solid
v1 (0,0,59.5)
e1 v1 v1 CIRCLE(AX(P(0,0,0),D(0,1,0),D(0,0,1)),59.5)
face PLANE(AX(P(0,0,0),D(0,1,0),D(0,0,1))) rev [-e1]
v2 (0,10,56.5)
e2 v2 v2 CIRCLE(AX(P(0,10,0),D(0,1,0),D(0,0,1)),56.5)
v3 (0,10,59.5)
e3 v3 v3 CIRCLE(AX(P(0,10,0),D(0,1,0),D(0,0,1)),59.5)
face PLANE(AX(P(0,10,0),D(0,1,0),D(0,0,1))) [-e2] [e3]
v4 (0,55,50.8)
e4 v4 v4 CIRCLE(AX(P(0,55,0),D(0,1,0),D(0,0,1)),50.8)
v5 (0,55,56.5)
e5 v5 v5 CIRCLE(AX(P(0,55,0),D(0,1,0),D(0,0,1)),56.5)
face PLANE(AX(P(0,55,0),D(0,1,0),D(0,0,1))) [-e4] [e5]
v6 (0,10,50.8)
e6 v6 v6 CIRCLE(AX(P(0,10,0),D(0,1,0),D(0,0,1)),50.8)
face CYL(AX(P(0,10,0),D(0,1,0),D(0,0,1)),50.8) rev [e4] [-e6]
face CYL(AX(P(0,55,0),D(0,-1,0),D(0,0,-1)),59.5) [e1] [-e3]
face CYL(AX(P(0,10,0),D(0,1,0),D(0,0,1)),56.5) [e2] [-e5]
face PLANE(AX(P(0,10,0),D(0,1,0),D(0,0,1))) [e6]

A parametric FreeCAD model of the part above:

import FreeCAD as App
import Part
import Sketcher
from FreeCAD import Vector

doc = App.newDocument("Part")
body = doc.addObject("PartDesign::Body", "Body")

# Sketch on XZ plane
sketch1 = body.newObject("Sketcher::SketchObject", "Sketch")
sketch1.AttachmentSupport = (doc.getObject("XZ_Plane"), [""])
sketch1.MapMode = "FlatFace"
sketch1.addGeometry(Part.Circle(Vector(0, 0, 0), Vector(0, 0, 1), 60), False)
sketch1.addConstraint([
    Sketcher.Constraint("Coincident", 0, 3, -1, 1),
    Sketcher.Constraint("Diameter", 0, 119.0),
])
pad1 = body.newObject("PartDesign::Pad", "Pad")
pad1.Profile = sketch1
pad1.Length = 55
pad1.Reversed = True

# Sketch on XZ plane
sketch2 = body.newObject("Sketcher::SketchObject", "Sketch001")
sketch2.AttachmentSupport = (doc.getObject("XZ_Plane"), [""])
sketch2.MapMode = "FlatFace"
sketch2.AttachmentOffset = App.Placement(Vector(0, 0, -55), App.Rotation())
sketch2.addGeometry(Part.Circle(Vector(0, 0, 0), Vector(0, 0, 1), 51), False)
sketch2.addConstraint([
    Sketcher.Constraint("Coincident", 0, 3, -1, 1),
    Sketcher.Constraint("Diameter", 0, 101.6),
])
pocket1 = body.newObject("PartDesign::Pocket", "Pocket")
pocket1.Profile = sketch2
pocket1.Length = 45
pocket1.Reversed = True

# Sketch on XZ plane
sketch3 = body.newObject("Sketcher::SketchObject", "Sketch002")
sketch3.AttachmentSupport = (doc.getObject("XZ_Plane"), [""])
sketch3.MapMode = "FlatFace"
sketch3.AttachmentOffset = App.Placement(Vector(0, 0, -55), App.Rotation())
sketch3.addGeometry([
    Part.Circle(Vector(0, 0, 0), Vector(0, 0, 1), 60),
    Part.Circle(Vector(0, 0, 0), Vector(0, 0, 1), 56),
], False)
sketch3.addConstraint([
    Sketcher.Constraint("Coincident", 0, 3, -1, 1),
    Sketcher.Constraint("Coincident", 1, 3, -1, 1),
    Sketcher.Constraint("Diameter", 0, 119.0),
    Sketcher.Constraint("Diameter", 1, 113.0),
])
pocket2 = body.newObject("PartDesign::Pocket", "Pocket001")
pocket2.Profile = sketch3
pocket2.Length = 45
pocket2.Reversed = True

doc.recompute()
